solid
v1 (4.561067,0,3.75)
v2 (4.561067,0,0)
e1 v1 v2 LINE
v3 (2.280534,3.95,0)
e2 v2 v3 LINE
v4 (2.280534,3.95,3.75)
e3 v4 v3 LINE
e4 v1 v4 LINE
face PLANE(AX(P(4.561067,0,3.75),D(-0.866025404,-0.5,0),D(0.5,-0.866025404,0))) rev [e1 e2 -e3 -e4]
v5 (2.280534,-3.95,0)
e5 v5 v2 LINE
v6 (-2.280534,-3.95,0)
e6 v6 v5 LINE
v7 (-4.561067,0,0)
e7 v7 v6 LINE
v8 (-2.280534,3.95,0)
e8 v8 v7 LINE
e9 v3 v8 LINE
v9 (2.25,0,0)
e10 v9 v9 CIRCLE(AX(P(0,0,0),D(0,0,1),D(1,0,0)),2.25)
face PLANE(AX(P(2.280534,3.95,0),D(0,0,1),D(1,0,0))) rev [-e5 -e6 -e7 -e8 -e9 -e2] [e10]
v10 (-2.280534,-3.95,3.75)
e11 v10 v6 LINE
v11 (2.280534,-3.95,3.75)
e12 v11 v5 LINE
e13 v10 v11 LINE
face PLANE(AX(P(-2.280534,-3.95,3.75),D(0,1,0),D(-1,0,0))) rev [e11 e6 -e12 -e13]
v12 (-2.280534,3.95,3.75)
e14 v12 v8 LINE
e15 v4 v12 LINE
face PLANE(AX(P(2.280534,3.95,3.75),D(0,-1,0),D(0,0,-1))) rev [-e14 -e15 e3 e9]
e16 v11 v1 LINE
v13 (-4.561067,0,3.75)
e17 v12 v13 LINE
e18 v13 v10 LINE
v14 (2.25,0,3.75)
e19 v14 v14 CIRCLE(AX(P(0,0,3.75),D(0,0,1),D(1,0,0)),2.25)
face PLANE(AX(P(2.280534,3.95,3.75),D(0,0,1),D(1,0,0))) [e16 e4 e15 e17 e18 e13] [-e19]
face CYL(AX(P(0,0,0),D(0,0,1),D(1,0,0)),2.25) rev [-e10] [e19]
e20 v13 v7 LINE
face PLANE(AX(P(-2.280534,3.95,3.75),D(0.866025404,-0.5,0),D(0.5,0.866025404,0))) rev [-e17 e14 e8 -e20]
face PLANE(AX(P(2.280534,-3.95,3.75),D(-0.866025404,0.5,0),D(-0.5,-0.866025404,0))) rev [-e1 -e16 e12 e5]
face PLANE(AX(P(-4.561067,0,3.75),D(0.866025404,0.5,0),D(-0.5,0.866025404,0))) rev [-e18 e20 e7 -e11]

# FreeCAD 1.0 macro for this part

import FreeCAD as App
import Part
import Sketcher
Q = App.Units.Quantity

doc = App.newDocument("Part")
body = doc.addObject("PartDesign::Body", "Body")

# Sketch on XY plane
sketch1 = doc.addObject("Sketcher::SketchObject", "Sketch")
body.addObject(sketch1)
sketch1.AttachmentSupport = (doc.XY_Plane, [""])
sketch1.MapMode = "FlatFace"
sketch1.addGeometry([
    Part.LineSegment(App.Vector(2.3, 4, 0), App.Vector(-2.3, 4, 0)),  # 0
    Part.LineSegment(App.Vector(-2.3, 4, 0), App.Vector(-4.6, 0, 0)),  # 1
    Part.LineSegment(App.Vector(-4.6, 0, 0), App.Vector(-2.3, -4, 0)),  # 2
    Part.LineSegment(App.Vector(-2.3, -4, 0), App.Vector(2.3, -4, 0)),  # 3
    Part.LineSegment(App.Vector(2.3, -4, 0), App.Vector(4.6, 0, 0)),  # 4
    Part.LineSegment(App.Vector(4.6, 0, 0), App.Vector(2.3, 4, 0)),  # 5
], False)
sketch1.addConstraint([
    Sketcher.Constraint("Coincident", 0, 2, 1, 1),
    Sketcher.Constraint("Coincident", 1, 2, 2, 1),
    Sketcher.Constraint("Coincident", 2, 2, 3, 1),
    Sketcher.Constraint("Coincident", 3, 2, 4, 1),
    Sketcher.Constraint("Coincident", 4, 2, 5, 1),
    Sketcher.Constraint("Coincident", 5, 2, 0, 1),
    Sketcher.Constraint("Horizontal", 0),
    Sketcher.Constraint("Horizontal", 3),
    Sketcher.Constraint("Symmetric", 0, 2, 3, 2, -1, 1),
    Sketcher.Constraint("Symmetric", 1, 2, 4, 2, -1, 1),
    Sketcher.Constraint("PointOnObject", 1, 2, -1),
    Sketcher.Constraint("Parallel", 2, 5),
    Sketcher.Constraint("Vertical", 0, 2, 2, 2),
    Sketcher.Constraint("Angle", 1, Q("-120 deg")),
    Sketcher.Constraint("DistanceY", 2, 2, 0, 2, 7.9),
    Sketcher.Constraint("DistanceX", 1, 2, 3, 2, 6.841601),
])
pad1 = doc.addObject("PartDesign::Pad", "Pad")
body.addObject(pad1)
pad1.Profile = sketch1
pad1.Length = 3.75

# Sketch on XY plane
sketch2 = doc.addObject("Sketcher::SketchObject", "Sketch001")
body.addObject(sketch2)
sketch2.AttachmentSupport = (doc.XY_Plane, [""])
sketch2.MapMode = "FlatFace"
sketch2.AttachmentOffset = App.Placement(App.Vector(0, 0, 3.75), App.Rotation())
sketch2.addGeometry(Part.Circle(App.Vector(0, 0, 0), App.Vector(0, 0, 1), 2.2), False)
sketch2.addConstraint([
    Sketcher.Constraint("Coincident", 0, 3, -1, 1),
    Sketcher.Constraint("Diameter", 0, 4.5),
])
pocket1 = doc.addObject("PartDesign::Pocket", "Pocket")
body.addObject(pocket1)
pocket1.Profile = sketch2
pocket1.Type = "ThroughAll"

doc.recompute()
